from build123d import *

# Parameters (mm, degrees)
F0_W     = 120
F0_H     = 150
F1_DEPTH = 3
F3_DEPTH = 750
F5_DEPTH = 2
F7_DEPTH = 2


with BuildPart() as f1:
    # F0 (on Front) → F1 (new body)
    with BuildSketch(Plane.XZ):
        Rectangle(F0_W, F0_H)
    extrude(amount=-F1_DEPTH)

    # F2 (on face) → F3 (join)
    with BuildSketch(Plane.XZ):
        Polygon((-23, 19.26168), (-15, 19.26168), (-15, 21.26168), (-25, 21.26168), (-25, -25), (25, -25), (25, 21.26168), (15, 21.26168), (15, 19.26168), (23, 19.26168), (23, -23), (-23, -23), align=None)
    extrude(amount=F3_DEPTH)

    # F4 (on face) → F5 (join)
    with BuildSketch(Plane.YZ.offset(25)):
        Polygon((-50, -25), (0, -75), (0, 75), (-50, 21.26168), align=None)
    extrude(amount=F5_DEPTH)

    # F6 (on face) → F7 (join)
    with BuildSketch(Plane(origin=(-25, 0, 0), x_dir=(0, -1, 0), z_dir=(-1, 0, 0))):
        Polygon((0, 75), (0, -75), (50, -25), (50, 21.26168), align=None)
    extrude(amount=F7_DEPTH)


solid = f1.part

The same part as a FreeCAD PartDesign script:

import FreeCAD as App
import Part
import Sketcher
Q = App.Units.Quantity


def add_polygon(sketch, points):
    """Adds a closed chain of lines whose ends are joined by coincident constraints."""
    first, n = sketch.GeometryCount, len(points)
    for a, b in zip(points, points[1:] + points[:1]):
        sketch.addGeometry(Part.LineSegment(App.Vector(*a, 0), App.Vector(*b, 0)), False)
    for i in range(n):
        sketch.addConstraint(Sketcher.Constraint("Coincident", first + i, 2, first + (i + 1) % n, 1))

doc = App.newDocument("Part")
body = doc.addObject("PartDesign::Body", "Body")

# Sketch on XZ plane
sketch1 = body.newObject("Sketcher::SketchObject", "Sketch")
sketch1.AttachmentSupport = (doc.getObject("XZ_Plane"), [""])
sketch1.MapMode = "FlatFace"
add_polygon(sketch1, [(-60, 75), (-60, -75), (60, -75), (60, 75)])  # lines 0-3
sketch1.addConstraint(Sketcher.Constraint("Vertical", 0))
sketch1.addConstraint(Sketcher.Constraint("Horizontal", 1))
sketch1.addConstraint(Sketcher.Constraint("Vertical", 2))
sketch1.addConstraint(Sketcher.Constraint("Horizontal", 3))
sketch1.addConstraint(Sketcher.Constraint("Symmetric", 0, 2, 2, 2, -1, 1))
sketch1.addConstraint(Sketcher.Constraint("DistanceX", 1, 1, 1, 2, 120.0))
sketch1.addConstraint(Sketcher.Constraint("DistanceY", 0, 2, 0, 1, 150.0))
pad1 = body.newObject("PartDesign::Pad", "Pad")
pad1.Profile = sketch1
pad1.Length = 3
pad1.Reversed = True

# Sketch on XZ plane
sketch2 = body.newObject("Sketcher::SketchObject", "Sketch001")
sketch2.AttachmentSupport = (doc.getObject("XZ_Plane"), [""])
sketch2.MapMode = "FlatFace"
add_polygon(sketch2, [(-23, 19.3), (-15, 19.3), (-15, 21.3), (-25, 21.3), (-25, -25), (25, -25), (25, 21.3), (15, 21.3), (15, 19.3), (23, 19.3), (23, -23), (-23, -23)])  # lines 0-11
sketch2.addConstraint(Sketcher.Constraint("Horizontal", 0))
sketch2.addConstraint(Sketcher.Constraint("Vertical", 1))
sketch2.addConstraint(Sketcher.Constraint("Horizontal", 2))
sketch2.addConstraint(Sketcher.Constraint("Vertical", 3))
sketch2.addConstraint(Sketcher.Constraint("Horizontal", 4))
sketch2.addConstraint(Sketcher.Constraint("Vertical", 5))
sketch2.addConstraint(Sketcher.Constraint("Horizontal", 6))
sketch2.addConstraint(Sketcher.Constraint("Vertical", 7))
sketch2.addConstraint(Sketcher.Constraint("Horizontal", 8))
sketch2.addConstraint(Sketcher.Constraint("Vertical", 9))
sketch2.addConstraint(Sketcher.Constraint("Horizontal", 10))
sketch2.addConstraint(Sketcher.Constraint("Vertical", 11))
sketch2.addConstraint(Sketcher.Constraint("Symmetric", 2, 2, 5, 2, -2))
sketch2.addConstraint(Sketcher.Constraint("Symmetric", 0, 2, 7, 2, -2))
sketch2.addConstraint(Sketcher.Constraint("Equal", 0, 8))
sketch2.addConstraint(Sketcher.Constraint("DistanceX", 0, 1, 0, 2, 8.0))
sketch2.addConstraint(Sketcher.Constraint("DistanceX", 2, 2, 2, 1, 10.0))
sketch2.addConstraint(Sketcher.Constraint("DistanceX", 4, 1, 4, 2, 50.0))
sketch2.addConstraint(Sketcher.Constraint("DistanceY", 1, 1, 1, 2, 2.0))
sketch2.addConstraint(Sketcher.Constraint("DistanceY", 3, 2, -1, 1, 25.0))
sketch2.addConstraint(Sketcher.Constraint("DistanceY", 9, 2, -1, 1, 23.0))
sketch2.addConstraint(Sketcher.Constraint("DistanceY", 3, 2, 3, 1, 46.26168))
pad2 = body.newObject("PartDesign::Pad", "Pad001")
pad2.Profile = sketch2
pad2.Length = 750

# Sketch on YZ plane
sketch3 = body.newObject("Sketcher::SketchObject", "Sketch002")
sketch3.AttachmentSupport = (doc.getObject("YZ_Plane"), [""])
sketch3.MapMode = "FlatFace"
sketch3.AttachmentOffset = App.Placement(App.Vector(0, 0, 25), App.Rotation())
add_polygon(sketch3, [(-50, -25), (0, -75), (0, 75), (-50, 21)])  # lines 0-3
sketch3.addConstraint(Sketcher.Constraint("Vertical", 1))
sketch3.addConstraint(Sketcher.Constraint("Vertical", 3))
sketch3.addConstraint(Sketcher.Constraint("Symmetric", 0, 2, 1, 2, -1, 1))
sketch3.addConstraint(Sketcher.Constraint("DistanceY", 1, 1, 1, 2, 150.0))
sketch3.addConstraint(Sketcher.Constraint("Angle", 0, Q("-45 deg")))
sketch3.addConstraint(Sketcher.Constraint("DistanceX", 2, 2, -1, 1, 50.0))
sketch3.addConstraint(Sketcher.Constraint("DistanceY", 3, 2, 3, 1, 46.26168))
pad3 = body.newObject("PartDesign::Pad", "Pad002")
pad3.Profile = sketch3
pad3.Length = 2

# Sketch on YZ plane
sketch4 = body.newObject("Sketcher::SketchObject", "Sketch003")
sketch4.AttachmentSupport = (doc.getObject("YZ_Plane"), [""])
sketch4.MapMode = "FlatFace"
sketch4.AttachmentOffset = App.Placement(App.Vector(0, 0, -25), App.Rotation())
add_polygon(sketch4, [(0, 75), (0, -75), (-50, -25), (-50, 21)])  # lines 0-3
sketch4.addConstraint(Sketcher.Constraint("Vertical", 0))
sketch4.addConstraint(Sketcher.Constraint("Vertical", 2))
sketch4.addConstraint(Sketcher.Constraint("Symmetric", 0, 2, 3, 2, -1, 1))
sketch4.addConstraint(Sketcher.Constraint("DistanceY", 0, 2, 0, 1, 150.0))
sketch4.addConstraint(Sketcher.Constraint("Angle", 1, Q("135 deg")))
sketch4.addConstraint(Sketcher.Constraint("DistanceX", 1, 2, -1, 1, 50.0))
sketch4.addConstraint(Sketcher.Constraint("DistanceY", 2, 1, 2, 2, 46.26168))
pad4 = body.newObject("PartDesign::Pad", "Pad003")
pad4.Profile = sketch4
pad4.Length = 2
pad4.Reversed = True

doc.recompute()
